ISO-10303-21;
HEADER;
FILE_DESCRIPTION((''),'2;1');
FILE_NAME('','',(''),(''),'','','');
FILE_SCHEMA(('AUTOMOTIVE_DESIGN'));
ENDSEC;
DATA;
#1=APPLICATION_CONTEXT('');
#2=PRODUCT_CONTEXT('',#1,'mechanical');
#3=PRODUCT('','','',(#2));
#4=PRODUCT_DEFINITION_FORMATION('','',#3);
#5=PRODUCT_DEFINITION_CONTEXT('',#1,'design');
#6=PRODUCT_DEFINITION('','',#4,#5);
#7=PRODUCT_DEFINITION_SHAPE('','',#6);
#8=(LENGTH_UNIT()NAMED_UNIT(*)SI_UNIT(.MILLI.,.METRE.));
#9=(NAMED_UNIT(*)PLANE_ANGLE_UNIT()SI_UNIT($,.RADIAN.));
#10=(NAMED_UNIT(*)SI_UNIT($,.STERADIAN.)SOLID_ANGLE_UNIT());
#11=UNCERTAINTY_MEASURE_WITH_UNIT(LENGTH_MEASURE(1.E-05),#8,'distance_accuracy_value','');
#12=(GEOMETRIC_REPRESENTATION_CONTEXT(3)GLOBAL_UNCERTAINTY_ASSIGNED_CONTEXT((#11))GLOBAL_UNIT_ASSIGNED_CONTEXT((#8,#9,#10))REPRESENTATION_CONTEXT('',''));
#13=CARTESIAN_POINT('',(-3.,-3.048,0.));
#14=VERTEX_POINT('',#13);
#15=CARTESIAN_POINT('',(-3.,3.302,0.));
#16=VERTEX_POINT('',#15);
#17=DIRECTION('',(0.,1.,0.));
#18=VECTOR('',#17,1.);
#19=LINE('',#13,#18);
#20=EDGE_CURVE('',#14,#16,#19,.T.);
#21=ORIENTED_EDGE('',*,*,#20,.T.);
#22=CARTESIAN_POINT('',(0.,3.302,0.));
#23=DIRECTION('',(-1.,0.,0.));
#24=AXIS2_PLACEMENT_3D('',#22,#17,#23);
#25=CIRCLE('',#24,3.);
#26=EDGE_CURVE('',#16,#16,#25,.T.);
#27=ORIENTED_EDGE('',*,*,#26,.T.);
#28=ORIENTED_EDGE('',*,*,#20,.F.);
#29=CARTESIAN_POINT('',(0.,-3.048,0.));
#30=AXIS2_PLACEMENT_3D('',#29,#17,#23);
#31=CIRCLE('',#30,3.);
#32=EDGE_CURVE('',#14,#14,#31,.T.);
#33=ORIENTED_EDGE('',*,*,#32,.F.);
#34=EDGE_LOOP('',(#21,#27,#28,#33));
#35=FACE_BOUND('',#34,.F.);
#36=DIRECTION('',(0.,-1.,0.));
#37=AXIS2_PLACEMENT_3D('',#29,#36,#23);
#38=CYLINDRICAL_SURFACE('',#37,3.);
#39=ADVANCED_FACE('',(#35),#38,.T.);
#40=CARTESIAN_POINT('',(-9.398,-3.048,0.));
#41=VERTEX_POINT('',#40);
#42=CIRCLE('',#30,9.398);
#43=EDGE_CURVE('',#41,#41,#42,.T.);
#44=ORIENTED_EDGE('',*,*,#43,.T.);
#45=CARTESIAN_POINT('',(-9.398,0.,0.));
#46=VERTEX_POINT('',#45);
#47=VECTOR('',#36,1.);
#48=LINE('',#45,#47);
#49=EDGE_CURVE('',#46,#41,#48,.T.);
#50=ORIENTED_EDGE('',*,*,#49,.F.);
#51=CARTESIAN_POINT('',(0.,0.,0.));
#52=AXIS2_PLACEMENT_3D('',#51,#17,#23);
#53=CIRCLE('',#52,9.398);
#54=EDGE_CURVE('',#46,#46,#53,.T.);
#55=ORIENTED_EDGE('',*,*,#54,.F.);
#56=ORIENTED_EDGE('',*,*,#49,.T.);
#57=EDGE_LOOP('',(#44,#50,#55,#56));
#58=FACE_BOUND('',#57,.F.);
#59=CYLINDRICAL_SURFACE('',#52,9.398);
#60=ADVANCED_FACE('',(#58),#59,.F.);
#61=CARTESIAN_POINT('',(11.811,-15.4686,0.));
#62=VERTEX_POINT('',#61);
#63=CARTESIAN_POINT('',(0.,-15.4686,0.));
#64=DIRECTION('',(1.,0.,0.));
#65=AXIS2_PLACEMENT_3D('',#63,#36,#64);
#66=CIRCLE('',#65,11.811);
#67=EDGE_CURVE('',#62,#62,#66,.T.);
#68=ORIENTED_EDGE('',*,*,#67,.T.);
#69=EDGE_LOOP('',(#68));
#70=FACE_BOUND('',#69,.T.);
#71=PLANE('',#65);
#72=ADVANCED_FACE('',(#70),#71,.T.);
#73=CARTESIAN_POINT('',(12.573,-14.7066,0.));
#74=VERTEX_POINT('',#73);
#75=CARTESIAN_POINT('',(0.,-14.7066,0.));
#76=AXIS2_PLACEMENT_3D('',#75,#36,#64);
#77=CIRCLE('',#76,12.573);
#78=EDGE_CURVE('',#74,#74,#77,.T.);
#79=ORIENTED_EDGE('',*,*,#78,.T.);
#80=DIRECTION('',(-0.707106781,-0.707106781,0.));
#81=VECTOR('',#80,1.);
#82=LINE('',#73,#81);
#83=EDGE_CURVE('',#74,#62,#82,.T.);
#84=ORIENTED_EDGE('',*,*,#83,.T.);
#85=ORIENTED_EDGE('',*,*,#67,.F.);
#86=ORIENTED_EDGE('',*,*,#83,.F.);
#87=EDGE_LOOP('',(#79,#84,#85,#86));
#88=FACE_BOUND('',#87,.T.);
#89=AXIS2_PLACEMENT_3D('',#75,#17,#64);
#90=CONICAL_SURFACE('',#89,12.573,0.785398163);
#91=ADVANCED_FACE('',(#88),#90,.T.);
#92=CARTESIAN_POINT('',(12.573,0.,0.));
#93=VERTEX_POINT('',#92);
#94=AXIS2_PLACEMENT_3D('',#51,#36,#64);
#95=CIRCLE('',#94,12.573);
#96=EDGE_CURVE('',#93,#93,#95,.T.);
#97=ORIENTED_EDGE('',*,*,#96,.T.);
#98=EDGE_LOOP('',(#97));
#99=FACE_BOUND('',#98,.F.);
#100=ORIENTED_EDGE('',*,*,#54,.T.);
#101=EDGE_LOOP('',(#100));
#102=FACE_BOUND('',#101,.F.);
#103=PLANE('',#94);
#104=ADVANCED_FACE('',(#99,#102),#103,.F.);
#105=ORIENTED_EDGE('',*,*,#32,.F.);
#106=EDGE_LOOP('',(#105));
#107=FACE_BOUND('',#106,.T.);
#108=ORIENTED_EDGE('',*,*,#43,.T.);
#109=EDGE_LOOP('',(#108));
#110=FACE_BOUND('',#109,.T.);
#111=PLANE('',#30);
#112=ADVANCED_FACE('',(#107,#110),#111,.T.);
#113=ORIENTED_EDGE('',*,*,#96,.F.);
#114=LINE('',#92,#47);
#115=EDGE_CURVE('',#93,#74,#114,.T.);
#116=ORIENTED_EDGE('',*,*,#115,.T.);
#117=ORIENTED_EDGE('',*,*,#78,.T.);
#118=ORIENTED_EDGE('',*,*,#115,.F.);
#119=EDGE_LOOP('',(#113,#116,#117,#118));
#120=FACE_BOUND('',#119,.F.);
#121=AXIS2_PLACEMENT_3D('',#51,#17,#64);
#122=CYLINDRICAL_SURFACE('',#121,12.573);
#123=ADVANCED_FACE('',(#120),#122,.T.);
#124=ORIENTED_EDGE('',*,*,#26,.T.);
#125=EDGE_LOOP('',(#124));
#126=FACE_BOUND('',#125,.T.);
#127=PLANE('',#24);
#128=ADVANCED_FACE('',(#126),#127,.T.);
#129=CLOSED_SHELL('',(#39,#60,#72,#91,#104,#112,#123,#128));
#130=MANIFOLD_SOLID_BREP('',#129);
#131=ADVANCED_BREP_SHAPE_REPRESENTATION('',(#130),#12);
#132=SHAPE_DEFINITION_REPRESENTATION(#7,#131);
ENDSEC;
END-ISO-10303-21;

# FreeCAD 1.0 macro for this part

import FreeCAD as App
import Part
import Sketcher

V = App.Vector
Q = App.Units.Quantity


def edges_at(feature, points):
    """Names of the edges that pass closest to the given points."""
    edges = feature.Shape.Edges
    near = lambda p: min(range(len(edges)), key=lambda i: edges[i].distToShape(Part.Vertex(*p))[0])
    return sorted({f"Edge{near(p) + 1}" for p in points})

doc = App.newDocument("Part")
body = doc.addObject("PartDesign::Body", "Body")

# Sketch on XZ plane
sketch1 = body.newObject("Sketcher::SketchObject", "Sketch")
sketch1.AttachmentSupport = (doc.getObject("XZ_Plane"), [""])
sketch1.MapMode = "FlatFace"
sketch1.addGeometry(Part.Circle(V(0, 0, 0), V(0, 0, 1), 13), False)
sketch1.addConstraint([
    Sketcher.Constraint("Coincident", 0, 3, -1, 1),
    Sketcher.Constraint("Diameter", 0, Q("0.99 in")),
])
pad1 = body.newObject("PartDesign::Pad", "Pad")
pad1.Profile = sketch1
pad1.Length = Q("0.609 in")

# Sketch on XZ plane
sketch2 = body.newObject("Sketcher::SketchObject", "Sketch001")
sketch2.AttachmentSupport = (doc.getObject("XZ_Plane"), [""])
sketch2.MapMode = "FlatFace"
sketch2.addGeometry(Part.Circle(V(0, 0, 0), V(0, 0, 1), 9), False)
sketch2.addConstraint([
    Sketcher.Constraint("Coincident", 0, 3, -1, 1),
    Sketcher.Constraint("Diameter", 0, Q("0.74 in")),
])
pocket1 = body.newObject("PartDesign::Pocket", "Pocket")
pocket1.Profile = sketch2
pocket1.Length = Q("0.12 in")
pocket1.Reversed = True
doc.recompute()

chamfer = body.newObject("PartDesign::Chamfer", "Chamfer")
chamfer.Base = (pocket1, edges_at(pocket1, [(-12.573, -15.469, 0)]))
chamfer.Size = Q("0.03 in")

# Sketch on XZ plane
sketch3 = body.newObject("Sketcher::SketchObject", "Sketch002")
sketch3.AttachmentSupport = (doc.getObject("XZ_Plane"), [""])
sketch3.MapMode = "FlatFace"
sketch3.AttachmentOffset = App.Placement(V(0, 0, 0.12 * 25.4), App.Rotation())
sketch3.addGeometry(Part.Circle(V(0, 0, 0), V(0, 0, 1), 3), False)
sketch3.addConstraint([
    Sketcher.Constraint("Coincident", 0, 3, -1, 1),
    Sketcher.Constraint("Diameter", 0, Q("6 mm")),
])
pad2 = body.newObject("PartDesign::Pad", "Pad001")
pad2.Profile = sketch3
pad2.Length = Q("0.25 in")
pad2.Reversed = True

doc.recompute()
